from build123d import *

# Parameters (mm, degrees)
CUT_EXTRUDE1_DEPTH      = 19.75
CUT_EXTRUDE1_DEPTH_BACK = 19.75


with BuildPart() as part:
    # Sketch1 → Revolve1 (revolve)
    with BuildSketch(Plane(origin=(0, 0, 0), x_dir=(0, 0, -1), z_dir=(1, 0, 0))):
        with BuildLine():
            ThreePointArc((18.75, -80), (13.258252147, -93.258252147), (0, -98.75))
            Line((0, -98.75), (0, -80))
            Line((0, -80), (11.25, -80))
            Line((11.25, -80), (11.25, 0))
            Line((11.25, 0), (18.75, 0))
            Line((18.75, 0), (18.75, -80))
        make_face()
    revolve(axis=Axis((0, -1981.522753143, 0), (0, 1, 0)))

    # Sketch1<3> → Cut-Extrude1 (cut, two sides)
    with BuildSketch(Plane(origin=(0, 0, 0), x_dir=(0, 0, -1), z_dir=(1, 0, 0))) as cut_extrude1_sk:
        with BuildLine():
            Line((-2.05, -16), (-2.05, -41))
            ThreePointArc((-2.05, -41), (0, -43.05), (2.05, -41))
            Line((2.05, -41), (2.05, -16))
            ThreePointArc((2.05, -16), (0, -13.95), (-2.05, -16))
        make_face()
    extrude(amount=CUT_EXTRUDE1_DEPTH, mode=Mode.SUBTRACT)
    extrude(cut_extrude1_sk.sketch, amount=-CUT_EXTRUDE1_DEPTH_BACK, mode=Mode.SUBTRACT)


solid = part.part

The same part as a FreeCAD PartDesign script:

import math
import FreeCAD as App
import Part
import Sketcher

V = App.Vector
Q = App.Units.Quantity

doc = App.newDocument("Part")
params = doc.addObject("Spreadsheet::Sheet", "Params")
for row, (alias, value) in enumerate([
    ("sketch1_width", "80 mm"),
    ("sketch1_radius", "18.75 mm"),
    ("sketch1_height", "7.5 mm"),
    ("revolution_angle", "360 deg"),
    ("sketch2_width", "25 mm"),
    ("sketch2_radius", "2.05 mm"),
], start=1):
    params.set(f"A{row}", alias)
    params.set(f"B{row}", "=" + value)
    params.setAlias(f"B{row}", alias)

body = doc.addObject("PartDesign::Body", "Body")

sketch1 = body.newObject("Sketcher::SketchObject", "Sketch")
sketch1.AttachmentSupport = (doc.getObject("YZ_Plane"), [""])
sketch1.MapMode = "FlatFace"
sketch1.addGeometry([
    Part.ArcOfCircle(Part.Circle(V(-80, 0, 0), V(0, 0, 1), 18.75), math.radians(-180), math.radians(-90)),
    Part.LineSegment(V(-80, -18.75, 0), V(0, -18.75, 0)),
    Part.LineSegment(V(0, -18.75, 0), V(0, -11.25, 0)),
    Part.LineSegment(V(0, -11.25, 0), V(-80, -11.25, 0)),
    Part.LineSegment(V(-80, -11.25, 0), V(-80, 0, 0)),
    Part.LineSegment(V(-80, 0, 0), V(-98.75, 0, 0)),
], False)
sketch1.addConstraint([
    Sketcher.Constraint("Tangent", 0, 2, 1, 1),
    Sketcher.Constraint("Coincident", 1, 2, 2, 1),
    Sketcher.Constraint("Coincident", 2, 2, 3, 1),
    Sketcher.Constraint("Coincident", 3, 2, 4, 1),
    Sketcher.Constraint("Coincident", 4, 2, 5, 1),
    Sketcher.Constraint("Coincident", 5, 2, 0, 1),
    Sketcher.Constraint("Horizontal", 1),
    Sketcher.Constraint("Vertical", 2),
    Sketcher.Constraint("Horizontal", 3),
    Sketcher.Constraint("Vertical", 4),
    Sketcher.Constraint("Horizontal", 5),
    Sketcher.Constraint("Coincident", 4, 2, 0, 3),
    Sketcher.Constraint("PointOnObject", 0, 3, -1),
    Sketcher.Constraint("PointOnObject", 1, 2, -2),
    Sketcher.Constraint("DistanceX", 1, 1, 1, 2, Q("80 mm")),
    Sketcher.Constraint("Radius", 0, Q("18.75 mm")),
    Sketcher.Constraint("DistanceY", 2, 1, 2, 2, Q("7.5 mm")),
])
sketch1.setExpression("Constraints[14]", "Params.sketch1_width")
sketch1.setExpression("Constraints[15]", "Params.sketch1_radius")
sketch1.setExpression("Constraints[16]", "Params.sketch1_height")
revolution = body.newObject("PartDesign::Revolution", "Revolution")
revolution.Profile = sketch1
revolution.ReferenceAxis = (sketch1, ["H_Axis"])
revolution.setExpression("Angle", "Params.revolution_angle")

sketch2 = body.newObject("Sketcher::SketchObject", "Sketch001")
sketch2.AttachmentSupport = (doc.getObject("YZ_Plane"), [""])
sketch2.MapMode = "FlatFace"
sketch2.addGeometry([
    Part.LineSegment(V(-16, 2.05, 0), V(-41, 2.05, 0)),
    Part.ArcOfCircle(Part.Circle(V(-41, 0, 0), V(0, 0, 1), 2.05), math.radians(90), math.radians(270)),
    Part.LineSegment(V(-41, -2.05, 0), V(-16, -2.05, 0)),
    Part.ArcOfCircle(Part.Circle(V(-16, 0, 0), V(0, 0, 1), 2.05), math.radians(-90), math.radians(90)),
], False)
sketch2.addConstraint([
    Sketcher.Constraint("Tangent", 0, 2, 1, 1),
    Sketcher.Constraint("Tangent", 1, 2, 2, 1),
    Sketcher.Constraint("Tangent", 2, 2, 3, 1),
    Sketcher.Constraint("Tangent", 3, 2, 0, 1),
    Sketcher.Constraint("Horizontal", 0),
    Sketcher.Constraint("Horizontal", 2),
    Sketcher.Constraint("PointOnObject", 1, 3, -1),
    Sketcher.Constraint("DistanceX", 0, 2, 0, 1, Q("25 mm")),
    Sketcher.Constraint("Radius", 1, Q("2.05 mm")),
    Sketcher.Constraint("DistanceX", 1, 3, -1, 1, Q("41 mm")),
])
sketch2.setExpression("Constraints[7]", "Params.sketch2_width")
sketch2.setExpression("Constraints[8]", "Params.sketch2_radius")
pocket1 = body.newObject("PartDesign::Pocket", "Pocket")
pocket1.Profile = sketch2
pocket1.Type = "ThroughAll"
pocket1.Midplane = True

doc.recompute()
